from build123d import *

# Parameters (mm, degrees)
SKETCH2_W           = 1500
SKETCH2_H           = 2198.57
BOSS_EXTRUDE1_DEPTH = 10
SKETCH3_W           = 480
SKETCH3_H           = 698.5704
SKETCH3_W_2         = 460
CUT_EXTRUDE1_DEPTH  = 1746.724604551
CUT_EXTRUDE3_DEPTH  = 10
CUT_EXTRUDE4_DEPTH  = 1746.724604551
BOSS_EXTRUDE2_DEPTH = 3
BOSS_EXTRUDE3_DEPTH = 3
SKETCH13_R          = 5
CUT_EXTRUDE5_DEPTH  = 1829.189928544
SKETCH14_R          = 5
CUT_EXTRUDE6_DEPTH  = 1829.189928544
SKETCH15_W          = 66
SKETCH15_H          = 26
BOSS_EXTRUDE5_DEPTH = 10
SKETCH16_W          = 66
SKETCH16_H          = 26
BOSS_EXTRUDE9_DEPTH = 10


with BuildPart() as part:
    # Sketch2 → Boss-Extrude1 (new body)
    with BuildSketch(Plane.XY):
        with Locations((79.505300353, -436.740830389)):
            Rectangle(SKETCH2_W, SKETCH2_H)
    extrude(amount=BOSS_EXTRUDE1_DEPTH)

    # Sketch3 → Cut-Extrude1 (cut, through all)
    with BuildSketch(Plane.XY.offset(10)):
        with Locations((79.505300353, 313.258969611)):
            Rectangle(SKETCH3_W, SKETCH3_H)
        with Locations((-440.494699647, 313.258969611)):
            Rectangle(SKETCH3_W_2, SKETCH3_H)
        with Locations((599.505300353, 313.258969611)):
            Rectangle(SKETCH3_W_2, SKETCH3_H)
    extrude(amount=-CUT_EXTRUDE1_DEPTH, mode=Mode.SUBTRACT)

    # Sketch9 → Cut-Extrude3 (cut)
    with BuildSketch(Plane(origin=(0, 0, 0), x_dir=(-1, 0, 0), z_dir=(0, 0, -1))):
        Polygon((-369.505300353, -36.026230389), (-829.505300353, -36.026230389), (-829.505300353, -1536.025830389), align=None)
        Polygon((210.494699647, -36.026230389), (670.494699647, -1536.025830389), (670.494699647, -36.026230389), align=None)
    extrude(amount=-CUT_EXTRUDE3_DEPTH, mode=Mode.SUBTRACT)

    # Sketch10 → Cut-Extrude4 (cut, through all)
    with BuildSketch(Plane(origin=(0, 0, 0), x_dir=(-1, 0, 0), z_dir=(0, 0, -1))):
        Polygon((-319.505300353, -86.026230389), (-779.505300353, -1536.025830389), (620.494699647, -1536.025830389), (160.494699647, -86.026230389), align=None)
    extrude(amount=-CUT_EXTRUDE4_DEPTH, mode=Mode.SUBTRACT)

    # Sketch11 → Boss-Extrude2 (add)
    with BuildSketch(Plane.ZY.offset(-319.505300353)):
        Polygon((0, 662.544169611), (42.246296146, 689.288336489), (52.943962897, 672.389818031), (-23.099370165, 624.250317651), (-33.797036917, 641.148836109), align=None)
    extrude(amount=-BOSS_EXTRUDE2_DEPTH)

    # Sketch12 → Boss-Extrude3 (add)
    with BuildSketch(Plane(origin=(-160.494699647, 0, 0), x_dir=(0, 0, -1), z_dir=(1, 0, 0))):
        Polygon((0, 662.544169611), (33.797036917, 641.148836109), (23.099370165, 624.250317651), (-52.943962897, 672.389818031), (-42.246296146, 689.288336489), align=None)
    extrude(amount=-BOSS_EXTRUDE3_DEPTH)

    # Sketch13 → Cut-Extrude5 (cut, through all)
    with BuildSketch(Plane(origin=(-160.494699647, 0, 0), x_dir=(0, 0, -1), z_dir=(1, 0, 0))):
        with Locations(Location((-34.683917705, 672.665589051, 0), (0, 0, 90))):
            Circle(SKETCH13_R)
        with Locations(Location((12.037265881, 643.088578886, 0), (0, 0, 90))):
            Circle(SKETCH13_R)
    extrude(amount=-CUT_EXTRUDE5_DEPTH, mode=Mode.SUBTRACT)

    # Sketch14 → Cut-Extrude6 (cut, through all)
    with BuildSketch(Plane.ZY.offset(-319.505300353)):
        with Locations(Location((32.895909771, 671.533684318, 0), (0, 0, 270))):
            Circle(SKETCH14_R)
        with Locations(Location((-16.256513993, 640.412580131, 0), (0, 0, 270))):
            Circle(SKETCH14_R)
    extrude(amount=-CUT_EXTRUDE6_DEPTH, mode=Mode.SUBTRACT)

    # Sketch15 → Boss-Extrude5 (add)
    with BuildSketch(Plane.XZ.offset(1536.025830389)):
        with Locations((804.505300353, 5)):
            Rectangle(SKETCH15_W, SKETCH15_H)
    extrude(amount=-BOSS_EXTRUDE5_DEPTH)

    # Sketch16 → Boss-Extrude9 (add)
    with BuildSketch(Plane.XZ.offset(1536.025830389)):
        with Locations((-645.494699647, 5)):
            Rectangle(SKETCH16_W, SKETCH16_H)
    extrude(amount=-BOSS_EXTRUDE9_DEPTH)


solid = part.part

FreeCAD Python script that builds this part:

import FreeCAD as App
import Part
import Sketcher

V = App.Vector


def add_polygon(sketch, points):
    """Adds a closed chain of lines whose ends are joined by coincident constraints."""
    first, n = sketch.GeometryCount, len(points)
    for a, b in zip(points, points[1:] + points[:1]):
        sketch.addGeometry(Part.LineSegment(App.Vector(*a, 0), App.Vector(*b, 0)), False)
    for i in range(n):
        sketch.addConstraint(Sketcher.Constraint("Coincident", first + i, 2, first + (i + 1) % n, 1))

doc = App.newDocument("Part")
body = doc.addObject("PartDesign::Body", "Body")

# Sketch on XY plane
sketch1 = body.newObject("Sketcher::SketchObject", "Sketch")
sketch1.AttachmentSupport = (doc.getObject("XY_Plane"), [""])
sketch1.MapMode = "FlatFace"
add_polygon(sketch1, [(-670, 663), (-670, -1536), (830, -1536), (830, 663)])  # lines 0-3
sketch1.addConstraint(Sketcher.Constraint("Vertical", 0))
sketch1.addConstraint(Sketcher.Constraint("Horizontal", 1))
sketch1.addConstraint(Sketcher.Constraint("Vertical", 2))
sketch1.addConstraint(Sketcher.Constraint("Horizontal", 3))
sketch1.addConstraint(Sketcher.Constraint("DistanceX", 1, 1, 1, 2, 1500.0))
sketch1.addConstraint(Sketcher.Constraint("DistanceY", 0, 2, 0, 1, 2198.57))
sketch1.addConstraint(Sketcher.Constraint("DistanceX", 0, 2, -1, 1, 670.4947))
sketch1.addConstraint(Sketcher.Constraint("DistanceY", 0, 2, -1, 1, 1536.02583))
pad1 = body.newObject("PartDesign::Pad", "Pad")
pad1.Profile = sketch1
pad1.Length = 10

# Sketch on XY plane
sketch2 = body.newObject("Sketcher::SketchObject", "Sketch001")
sketch2.AttachmentSupport = (doc.getObject("XY_Plane"), [""])
sketch2.MapMode = "FlatFace"
sketch2.AttachmentOffset = App.Placement(V(0, 0, 10), App.Rotation())
add_polygon(sketch2, [(-160, 663), (-160, -36), (320, -36), (320, 663)])  # lines 0-3
add_polygon(sketch2, [(-670, 663), (-670, -36), (-210, -36), (-210, 663)])  # lines 4-7
add_polygon(sketch2, [(370, 663), (370, -36), (830, -36), (830, 663)])  # lines 8-11
sketch2.addConstraint(Sketcher.Constraint("Vertical", 0))
sketch2.addConstraint(Sketcher.Constraint("Horizontal", 1))
sketch2.addConstraint(Sketcher.Constraint("Vertical", 2))
sketch2.addConstraint(Sketcher.Constraint("Horizontal", 3))
sketch2.addConstraint(Sketcher.Constraint("Vertical", 4))
sketch2.addConstraint(Sketcher.Constraint("Horizontal", 5))
sketch2.addConstraint(Sketcher.Constraint("Vertical", 6))
sketch2.addConstraint(Sketcher.Constraint("Horizontal", 7))
sketch2.addConstraint(Sketcher.Constraint("Vertical", 8))
sketch2.addConstraint(Sketcher.Constraint("Horizontal", 9))
sketch2.addConstraint(Sketcher.Constraint("Vertical", 10))
sketch2.addConstraint(Sketcher.Constraint("Horizontal", 11))
sketch2.addConstraint(Sketcher.Constraint("Horizontal", 1, 2, 4, 2))
sketch2.addConstraint(Sketcher.Constraint("Horizontal", 3, 2, 6, 2))
sketch2.addConstraint(Sketcher.Constraint("Horizontal", 5, 2, 8, 2))
sketch2.addConstraint(Sketcher.Constraint("Horizontal", 7, 2, 10, 2))
sketch2.addConstraint(Sketcher.Constraint("Equal", 7, 9))
sketch2.addConstraint(Sketcher.Constraint("DistanceX", 1, 1, 1, 2, 480.0))
sketch2.addConstraint(Sketcher.Constraint("DistanceX", 5, 1, 5, 2, 460.0))
sketch2.addConstraint(Sketcher.Constraint("DistanceX", 4, 2, 0, 2, 510.0))
sketch2.addConstraint(Sketcher.Constraint("DistanceX", 1, 2, 8, 2, 50.0))
sketch2.addConstraint(Sketcher.Constraint("DistanceY", 0, 2, 0, 1, 698.5704))
sketch2.addConstraint(Sketcher.Constraint("DistanceX", 0, 2, -1, 1, 160.4947))
sketch2.addConstraint(Sketcher.Constraint("DistanceY", 0, 2, -1, 1, 36.02623))
pocket1 = body.newObject("PartDesign::Pocket", "Pocket")
pocket1.Profile = sketch2
pocket1.Type = "ThroughAll"

# Sketch on XY plane
sketch3 = body.newObject("Sketcher::SketchObject", "Sketch002")
sketch3.AttachmentSupport = (doc.getObject("XY_Plane"), [""])
sketch3.MapMode = "FlatFace"
add_polygon(sketch3, [(370, -36), (830, -36), (830, -1536)])  # lines 0-2
add_polygon(sketch3, [(-210, -36), (-670, -1536), (-670, -36)])  # lines 3-5
sketch3.addConstraint(Sketcher.Constraint("Horizontal", 0))
sketch3.addConstraint(Sketcher.Constraint("Vertical", 1))
sketch3.addConstraint(Sketcher.Constraint("Vertical", 4))
sketch3.addConstraint(Sketcher.Constraint("Horizontal", 5))
sketch3.addConstraint(Sketcher.Constraint("Horizontal", 1, 2, 3, 2))
sketch3.addConstraint(Sketcher.Constraint("Horizontal", 2, 2, 4, 2))
sketch3.addConstraint(Sketcher.Constraint("Equal", 0, 5))
sketch3.addConstraint(Sketcher.Constraint("DistanceX", 0, 1, 0, 2, 460.0))
sketch3.addConstraint(Sketcher.Constraint("DistanceX", 3, 2, 1, 2, 1500.0))
sketch3.addConstraint(Sketcher.Constraint("DistanceY", 1, 2, 1, 1, 1499.9996))
sketch3.addConstraint(Sketcher.Constraint("DistanceX", -1, 1, 0, 2, 829.5053))
sketch3.addConstraint(Sketcher.Constraint("DistanceY", 0, 2, -1, 1, 36.02623))
pocket2 = body.newObject("PartDesign::Pocket", "Pocket001")
pocket2.Profile = sketch3
pocket2.Length = 10
pocket2.Reversed = True

# Sketch on XY plane
sketch4 = body.newObject("Sketcher::SketchObject", "Sketch003")
sketch4.AttachmentSupport = (doc.getObject("XY_Plane"), [""])
sketch4.MapMode = "FlatFace"
add_polygon(sketch4, [(320, -86), (780, -1536), (-620, -1536), (-160, -86)])  # lines 0-3
sketch4.addConstraint(Sketcher.Constraint("Horizontal", 1))
sketch4.addConstraint(Sketcher.Constraint("Horizontal", 3))
sketch4.addConstraint(Sketcher.Constraint("Equal", 0, 2))
sketch4.addConstraint(Sketcher.Constraint("DistanceX", 1, 2, 1, 1, 1400.0))
sketch4.addConstraint(Sketcher.Constraint("DistanceX", 3, 1, 3, 2, 480.0))
sketch4.addConstraint(Sketcher.Constraint("DistanceX", -1, 1, 0, 2, 779.5053))
sketch4.addConstraint(Sketcher.Constraint("DistanceY", 1, 2, 2, 2, 1449.9996))
sketch4.addConstraint(Sketcher.Constraint("DistanceY", 0, 2, -1, 1, 1536.02583))
pocket3 = body.newObject("PartDesign::Pocket", "Pocket002")
pocket3.Profile = sketch4
pocket3.Type = "ThroughAll"
pocket3.Reversed = True

# Sketch on YZ plane
sketch5 = body.newObject("Sketcher::SketchObject", "Sketch004")
sketch5.AttachmentSupport = (doc.getObject("YZ_Plane"), [""])
sketch5.MapMode = "FlatFace"
sketch5.AttachmentOffset = App.Placement(V(0, 0, 319.5053), App.Rotation())
add_polygon(sketch5, [(689, 42), (663, 0), (641, -34), (624, -23), (672, 53)])  # lines 0-4
sketch5.addConstraint(Sketcher.Constraint("PointOnObject", 0, 2, -1))
sketch5.addConstraint(Sketcher.Constraint("Parallel", 0, 1))
sketch5.addConstraint(Sketcher.Constraint("Perpendicular", 1, 2))
sketch5.addConstraint(Sketcher.Constraint("Perpendicular", 2, 3))
sketch5.addConstraint(Sketcher.Constraint("Perpendicular", 3, 4))
sketch5.addConstraint(Sketcher.Constraint("Distance", 0, 50.0))
sketch5.addConstraint(Sketcher.Constraint("Distance", 1, 40.0))
sketch5.addConstraint(Sketcher.Constraint("Distance", 2, 20.0))
sketch5.addConstraint(Sketcher.Constraint("DistanceY", 1, 2, 3, 2, 86.741))
sketch5.addConstraint(Sketcher.Constraint("DistanceX", -1, 1, 0, 2, 662.54417))
pad2 = body.newObject("PartDesign::Pad", "Pad001")
pad2.Profile = sketch5
pad2.Length = 3

# Sketch on YZ plane
sketch6 = body.newObject("Sketcher::SketchObject", "Sketch005")
sketch6.AttachmentSupport = (doc.getObject("YZ_Plane"), [""])
sketch6.MapMode = "FlatFace"
sketch6.AttachmentOffset = App.Placement(V(0, 0, -160.4947), App.Rotation())
add_polygon(sketch6, [(641, -34), (663, 0), (689, 42), (672, 53), (624, -23)])  # lines 0-4
sketch6.addConstraint(Sketcher.Constraint("PointOnObject", 0, 2, -1))
sketch6.addConstraint(Sketcher.Constraint("Parallel", 0, 1))
sketch6.addConstraint(Sketcher.Constraint("Perpendicular", 1, 2))
sketch6.addConstraint(Sketcher.Constraint("Perpendicular", 2, 3))
sketch6.addConstraint(Sketcher.Constraint("Perpendicular", 3, 4))
sketch6.addConstraint(Sketcher.Constraint("Distance", 0, 40.0))
sketch6.addConstraint(Sketcher.Constraint("Distance", 1, 50.0))
sketch6.addConstraint(Sketcher.Constraint("Distance", 2, 20.0))
sketch6.addConstraint(Sketcher.Constraint("DistanceY", 4, 2, 2, 2, 86.741))
sketch6.addConstraint(Sketcher.Constraint("DistanceX", -1, 1, 0, 2, 662.54417))
pad3 = body.newObject("PartDesign::Pad", "Pad002")
pad3.Profile = sketch6
pad3.Length = 3
pad3.Reversed = True

# Sketch on YZ plane
sketch7 = body.newObject("Sketcher::SketchObject", "Sketch006")
sketch7.AttachmentSupport = (doc.getObject("YZ_Plane"), [""])
sketch7.MapMode = "FlatFace"
sketch7.AttachmentOffset = App.Placement(V(0, 0, -160.4947), App.Rotation())
sketch7.addGeometry(Part.Circle(V(673, 35, 0), V(0, 0, 1), 5), False)
sketch7.addGeometry(Part.Circle(V(643, -12, 0), V(0, 0, 1), 5), False)
sketch7.addConstraint(Sketcher.Constraint("Equal", 0, 1))
sketch7.addConstraint(Sketcher.Constraint("Diameter", 0, 10.0))
sketch7.addConstraint(Sketcher.Constraint("DistanceX", -1, 1, 0, 3, 672.665589))
sketch7.addConstraint(Sketcher.Constraint("DistanceX", -1, 1, 1, 3, 643.088579))
sketch7.addConstraint(Sketcher.Constraint("DistanceY", -1, 1, 0, 3, 34.683918))
sketch7.addConstraint(Sketcher.Constraint("DistanceY", 1, 3, -1, 1, 12.037266))
pocket4 = body.newObject("PartDesign::Pocket", "Pocket003")
pocket4.Profile = sketch7
pocket4.Type = "ThroughAll"

# Sketch on YZ plane
sketch8 = body.newObject("Sketcher::SketchObject", "Sketch007")
sketch8.AttachmentSupport = (doc.getObject("YZ_Plane"), [""])
sketch8.MapMode = "FlatFace"
sketch8.AttachmentOffset = App.Placement(V(0, 0, 319.5053), App.Rotation())
sketch8.addGeometry(Part.Circle(V(672, 33, 0), V(0, 0, 1), 5), False)
sketch8.addGeometry(Part.Circle(V(640, -16, 0), V(0, 0, 1), 5), False)
sketch8.addConstraint(Sketcher.Constraint("Equal", 0, 1))
sketch8.addConstraint(Sketcher.Constraint("Diameter", 0, 10.0))
sketch8.addConstraint(Sketcher.Constraint("DistanceY", -1, 1, 0, 3, 32.89591))
sketch8.addConstraint(Sketcher.Constraint("DistanceX", -1, 1, 1, 3, 640.41258))
sketch8.addConstraint(Sketcher.Constraint("DistanceX", -1, 1, 0, 3, 671.533684))
sketch8.addConstraint(Sketcher.Constraint("DistanceY", 1, 3, -1, 1, 16.256514))
pocket5 = body.newObject("PartDesign::Pocket", "Pocket004")
pocket5.Profile = sketch8
pocket5.Type = "ThroughAll"
pocket5.Reversed = True

# Sketch on XZ plane
sketch9 = body.newObject("Sketcher::SketchObject", "Sketch008")
sketch9.AttachmentSupport = (doc.getObject("XZ_Plane"), [""])
sketch9.MapMode = "FlatFace"
sketch9.AttachmentOffset = App.Placement(V(0, 0, 1536.02583), App.Rotation())
add_polygon(sketch9, [(772, 18), (772, -8), (838, -8), (838, 18)])  # lines 0-3
sketch9.addConstraint(Sketcher.Constraint("Vertical", 0))
sketch9.addConstraint(Sketcher.Constraint("Horizontal", 1))
sketch9.addConstraint(Sketcher.Constraint("Vertical", 2))
sketch9.addConstraint(Sketcher.Constraint("Horizontal", 3))
sketch9.addConstraint(Sketcher.Constraint("DistanceX", 1, 1, 1, 2, 66.0))
sketch9.addConstraint(Sketcher.Constraint("DistanceY", 0, 2, 0, 1, 26.0))
sketch9.addConstraint(Sketcher.Constraint("DistanceY", 0, 2, -1, 1, 8.0))
sketch9.addConstraint(Sketcher.Constraint("DistanceX", -1, 1, 0, 2, 771.5053))
pad4 = body.newObject("PartDesign::Pad", "Pad003")
pad4.Profile = sketch9
pad4.Length = 10
pad4.Reversed = True

# Sketch on XZ plane
sketch10 = body.newObject("Sketcher::SketchObject", "Sketch009")
sketch10.AttachmentSupport = (doc.getObject("XZ_Plane"), [""])
sketch10.MapMode = "FlatFace"
sketch10.AttachmentOffset = App.Placement(V(0, 0, 1536.02583), App.Rotation())
add_polygon(sketch10, [(-678, 18), (-678, -8), (-612, -8), (-612, 18)])  # lines 0-3
sketch10.addConstraint(Sketcher.Constraint("Vertical", 0))
sketch10.addConstraint(Sketcher.Constraint("Horizontal", 1))
sketch10.addConstraint(Sketcher.Constraint("Vertical", 2))
sketch10.addConstraint(Sketcher.Constraint("Horizontal", 3))
sketch10.addConstraint(Sketcher.Constraint("DistanceX", 1, 1, 1, 2, 66.0))
sketch10.addConstraint(Sketcher.Constraint("DistanceY", 0, 2, 0, 1, 26.0))
sketch10.addConstraint(Sketcher.Constraint("DistanceY", 0, 2, -1, 1, 8.0))
sketch10.addConstraint(Sketcher.Constraint("DistanceX", 0, 2, -1, 1, 678.4947))
pad5 = body.newObject("PartDesign::Pad", "Pad004")
pad5.Profile = sketch10
pad5.Length = 10
pad5.Reversed = True

doc.recompute()
